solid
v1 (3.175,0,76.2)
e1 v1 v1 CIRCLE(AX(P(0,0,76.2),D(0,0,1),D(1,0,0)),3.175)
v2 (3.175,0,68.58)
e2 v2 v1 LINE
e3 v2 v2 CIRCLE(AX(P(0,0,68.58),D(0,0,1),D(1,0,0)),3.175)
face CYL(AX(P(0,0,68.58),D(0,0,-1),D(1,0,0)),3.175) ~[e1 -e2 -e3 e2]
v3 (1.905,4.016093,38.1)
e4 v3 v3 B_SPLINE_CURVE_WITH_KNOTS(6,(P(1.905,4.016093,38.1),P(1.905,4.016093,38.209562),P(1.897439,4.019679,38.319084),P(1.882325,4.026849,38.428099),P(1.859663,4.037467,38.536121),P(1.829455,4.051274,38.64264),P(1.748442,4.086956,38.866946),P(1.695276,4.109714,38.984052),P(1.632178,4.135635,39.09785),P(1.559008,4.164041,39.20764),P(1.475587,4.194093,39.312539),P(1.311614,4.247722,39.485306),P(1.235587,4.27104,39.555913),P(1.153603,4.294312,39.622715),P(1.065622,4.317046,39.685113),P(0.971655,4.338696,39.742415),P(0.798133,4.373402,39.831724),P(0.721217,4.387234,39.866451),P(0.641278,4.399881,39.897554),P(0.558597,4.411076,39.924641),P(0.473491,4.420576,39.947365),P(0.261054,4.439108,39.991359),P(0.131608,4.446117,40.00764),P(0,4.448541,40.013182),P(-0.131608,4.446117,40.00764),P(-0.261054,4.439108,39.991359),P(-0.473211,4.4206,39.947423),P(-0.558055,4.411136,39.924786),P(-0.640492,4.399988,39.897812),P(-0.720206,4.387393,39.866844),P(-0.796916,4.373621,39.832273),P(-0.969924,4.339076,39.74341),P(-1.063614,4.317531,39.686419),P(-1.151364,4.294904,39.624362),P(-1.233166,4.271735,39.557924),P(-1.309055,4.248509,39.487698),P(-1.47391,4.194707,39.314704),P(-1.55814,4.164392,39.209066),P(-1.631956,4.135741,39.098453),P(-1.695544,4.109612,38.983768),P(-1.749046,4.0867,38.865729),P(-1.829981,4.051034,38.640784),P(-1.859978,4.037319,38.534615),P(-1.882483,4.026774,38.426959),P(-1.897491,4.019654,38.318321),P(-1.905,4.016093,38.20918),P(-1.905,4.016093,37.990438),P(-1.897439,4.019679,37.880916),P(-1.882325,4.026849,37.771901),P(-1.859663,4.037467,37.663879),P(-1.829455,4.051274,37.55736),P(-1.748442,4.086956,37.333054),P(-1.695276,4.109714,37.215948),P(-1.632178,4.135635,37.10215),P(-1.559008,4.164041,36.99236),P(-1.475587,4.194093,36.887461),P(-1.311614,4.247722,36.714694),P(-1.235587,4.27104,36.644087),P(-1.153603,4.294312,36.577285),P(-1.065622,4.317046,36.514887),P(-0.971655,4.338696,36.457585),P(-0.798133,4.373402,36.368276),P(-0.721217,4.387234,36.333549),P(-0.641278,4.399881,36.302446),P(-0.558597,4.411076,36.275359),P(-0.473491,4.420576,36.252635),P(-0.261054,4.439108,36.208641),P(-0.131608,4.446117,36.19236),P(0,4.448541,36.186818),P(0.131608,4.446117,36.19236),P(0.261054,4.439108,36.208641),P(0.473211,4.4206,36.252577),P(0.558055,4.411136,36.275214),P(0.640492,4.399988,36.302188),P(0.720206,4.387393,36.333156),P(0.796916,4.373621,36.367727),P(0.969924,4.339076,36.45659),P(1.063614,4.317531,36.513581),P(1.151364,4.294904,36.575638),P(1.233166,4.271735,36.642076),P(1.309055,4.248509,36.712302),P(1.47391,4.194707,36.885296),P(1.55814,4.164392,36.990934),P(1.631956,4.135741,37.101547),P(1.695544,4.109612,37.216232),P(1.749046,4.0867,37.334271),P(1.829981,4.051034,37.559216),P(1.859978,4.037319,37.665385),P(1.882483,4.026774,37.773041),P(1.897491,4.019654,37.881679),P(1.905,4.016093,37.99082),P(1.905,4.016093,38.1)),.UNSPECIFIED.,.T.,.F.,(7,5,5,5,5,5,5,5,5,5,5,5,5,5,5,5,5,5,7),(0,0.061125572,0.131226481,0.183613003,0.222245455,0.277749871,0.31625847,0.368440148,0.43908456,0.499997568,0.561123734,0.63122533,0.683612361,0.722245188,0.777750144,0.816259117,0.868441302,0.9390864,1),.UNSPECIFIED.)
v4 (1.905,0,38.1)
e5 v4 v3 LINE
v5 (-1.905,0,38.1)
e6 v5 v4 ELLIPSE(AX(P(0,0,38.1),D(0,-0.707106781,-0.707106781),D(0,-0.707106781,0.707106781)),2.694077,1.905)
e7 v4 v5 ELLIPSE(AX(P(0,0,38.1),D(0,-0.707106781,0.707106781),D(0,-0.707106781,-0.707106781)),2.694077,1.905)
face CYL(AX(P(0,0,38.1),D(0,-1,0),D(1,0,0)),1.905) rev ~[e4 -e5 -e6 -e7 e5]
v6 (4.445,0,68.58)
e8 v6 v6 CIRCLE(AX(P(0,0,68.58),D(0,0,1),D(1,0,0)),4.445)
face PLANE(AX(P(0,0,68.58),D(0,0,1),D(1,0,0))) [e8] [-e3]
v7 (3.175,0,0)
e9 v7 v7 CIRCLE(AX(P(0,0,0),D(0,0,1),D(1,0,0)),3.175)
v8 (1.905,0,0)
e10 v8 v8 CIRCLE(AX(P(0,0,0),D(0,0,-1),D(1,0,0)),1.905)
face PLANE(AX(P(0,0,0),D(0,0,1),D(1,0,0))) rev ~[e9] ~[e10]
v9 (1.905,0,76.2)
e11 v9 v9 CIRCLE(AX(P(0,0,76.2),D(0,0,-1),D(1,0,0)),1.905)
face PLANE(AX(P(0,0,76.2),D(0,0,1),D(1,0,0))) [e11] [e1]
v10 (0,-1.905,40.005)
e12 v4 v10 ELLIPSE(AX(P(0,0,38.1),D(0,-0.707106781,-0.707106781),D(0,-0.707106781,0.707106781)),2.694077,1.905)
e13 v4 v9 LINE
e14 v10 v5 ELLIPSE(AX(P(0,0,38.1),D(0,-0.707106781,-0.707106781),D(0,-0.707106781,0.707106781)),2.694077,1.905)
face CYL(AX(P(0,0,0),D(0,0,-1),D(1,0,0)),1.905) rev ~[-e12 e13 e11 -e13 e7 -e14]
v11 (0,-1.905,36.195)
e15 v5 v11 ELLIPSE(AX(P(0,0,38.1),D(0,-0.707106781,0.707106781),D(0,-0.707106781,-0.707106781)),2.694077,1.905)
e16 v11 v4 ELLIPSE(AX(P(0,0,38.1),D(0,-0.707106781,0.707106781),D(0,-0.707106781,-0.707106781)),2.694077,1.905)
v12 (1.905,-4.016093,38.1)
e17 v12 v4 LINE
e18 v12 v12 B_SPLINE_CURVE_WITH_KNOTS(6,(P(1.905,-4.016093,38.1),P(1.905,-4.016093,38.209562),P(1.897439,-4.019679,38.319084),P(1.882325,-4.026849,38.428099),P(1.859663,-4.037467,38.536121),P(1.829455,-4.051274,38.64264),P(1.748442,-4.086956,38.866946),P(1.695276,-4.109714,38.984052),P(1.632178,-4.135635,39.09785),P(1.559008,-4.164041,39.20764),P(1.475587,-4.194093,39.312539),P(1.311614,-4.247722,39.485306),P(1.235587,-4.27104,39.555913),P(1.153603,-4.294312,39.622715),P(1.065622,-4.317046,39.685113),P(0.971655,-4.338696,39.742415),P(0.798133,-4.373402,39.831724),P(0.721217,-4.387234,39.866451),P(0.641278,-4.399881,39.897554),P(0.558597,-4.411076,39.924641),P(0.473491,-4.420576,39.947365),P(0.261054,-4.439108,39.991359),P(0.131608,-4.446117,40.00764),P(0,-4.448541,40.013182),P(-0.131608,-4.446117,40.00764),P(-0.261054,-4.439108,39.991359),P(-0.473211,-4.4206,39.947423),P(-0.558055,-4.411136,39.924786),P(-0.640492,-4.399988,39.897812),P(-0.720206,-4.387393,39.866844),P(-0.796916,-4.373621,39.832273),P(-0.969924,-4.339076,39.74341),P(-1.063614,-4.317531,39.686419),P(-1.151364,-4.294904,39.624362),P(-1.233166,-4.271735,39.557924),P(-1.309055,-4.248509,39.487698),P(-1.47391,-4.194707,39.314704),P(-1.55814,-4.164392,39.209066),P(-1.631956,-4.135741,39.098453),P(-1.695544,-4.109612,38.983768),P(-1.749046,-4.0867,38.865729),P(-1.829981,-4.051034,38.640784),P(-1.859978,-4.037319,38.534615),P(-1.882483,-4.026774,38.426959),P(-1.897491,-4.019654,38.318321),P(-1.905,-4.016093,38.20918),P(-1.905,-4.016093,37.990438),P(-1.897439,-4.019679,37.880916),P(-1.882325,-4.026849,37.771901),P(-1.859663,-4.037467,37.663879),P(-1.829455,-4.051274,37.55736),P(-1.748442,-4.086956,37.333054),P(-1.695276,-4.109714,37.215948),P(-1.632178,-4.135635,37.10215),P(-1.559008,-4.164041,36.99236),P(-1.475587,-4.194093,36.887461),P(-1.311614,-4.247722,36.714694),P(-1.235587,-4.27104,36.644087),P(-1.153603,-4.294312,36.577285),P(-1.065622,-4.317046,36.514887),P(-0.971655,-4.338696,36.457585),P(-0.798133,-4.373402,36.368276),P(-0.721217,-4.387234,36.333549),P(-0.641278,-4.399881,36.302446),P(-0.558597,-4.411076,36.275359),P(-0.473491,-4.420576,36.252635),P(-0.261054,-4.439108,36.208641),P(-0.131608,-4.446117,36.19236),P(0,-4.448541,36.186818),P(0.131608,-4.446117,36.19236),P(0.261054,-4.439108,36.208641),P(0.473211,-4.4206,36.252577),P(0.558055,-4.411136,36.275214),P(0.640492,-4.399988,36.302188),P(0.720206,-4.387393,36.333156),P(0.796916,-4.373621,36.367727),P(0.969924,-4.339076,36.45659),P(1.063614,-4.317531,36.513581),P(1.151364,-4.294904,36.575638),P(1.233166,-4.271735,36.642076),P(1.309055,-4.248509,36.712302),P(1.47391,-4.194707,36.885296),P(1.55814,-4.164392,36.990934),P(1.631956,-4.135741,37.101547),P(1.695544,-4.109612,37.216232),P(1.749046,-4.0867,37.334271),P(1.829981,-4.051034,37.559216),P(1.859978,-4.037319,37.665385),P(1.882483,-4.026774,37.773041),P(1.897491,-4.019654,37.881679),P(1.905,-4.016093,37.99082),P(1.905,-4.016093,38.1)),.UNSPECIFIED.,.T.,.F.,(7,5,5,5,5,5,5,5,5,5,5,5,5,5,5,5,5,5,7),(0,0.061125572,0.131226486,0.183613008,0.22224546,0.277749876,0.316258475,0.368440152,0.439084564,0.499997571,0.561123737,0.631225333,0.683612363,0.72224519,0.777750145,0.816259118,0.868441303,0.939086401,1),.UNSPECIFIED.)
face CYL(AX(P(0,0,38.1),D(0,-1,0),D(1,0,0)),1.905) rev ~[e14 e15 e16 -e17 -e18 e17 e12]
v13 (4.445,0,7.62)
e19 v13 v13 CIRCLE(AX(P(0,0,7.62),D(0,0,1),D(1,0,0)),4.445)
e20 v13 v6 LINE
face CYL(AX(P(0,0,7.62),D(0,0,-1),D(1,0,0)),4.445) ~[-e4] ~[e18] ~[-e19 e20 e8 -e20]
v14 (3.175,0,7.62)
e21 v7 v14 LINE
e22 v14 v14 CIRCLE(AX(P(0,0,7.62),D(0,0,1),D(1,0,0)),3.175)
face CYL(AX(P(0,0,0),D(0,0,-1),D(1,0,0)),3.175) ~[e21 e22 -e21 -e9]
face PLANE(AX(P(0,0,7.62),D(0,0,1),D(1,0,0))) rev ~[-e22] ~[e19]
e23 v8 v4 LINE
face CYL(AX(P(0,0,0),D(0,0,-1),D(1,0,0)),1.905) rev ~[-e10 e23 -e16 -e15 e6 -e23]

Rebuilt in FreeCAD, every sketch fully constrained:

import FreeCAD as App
import Part
import Sketcher

V = App.Vector
Q = App.Units.Quantity

doc = App.newDocument("Part")
body = doc.addObject("PartDesign::Body", "Body")

# Sketch on XY plane
sketch1 = body.newObject("Sketcher::SketchObject", "Sketch")
sketch1.AttachmentSupport = (doc.getObject("XY_Plane"), [""])
sketch1.MapMode = "FlatFace"
sketch1.addGeometry(Part.Circle(V(0, 0, 0), V(0, 0, 1), 3.2), False)
sketch1.addConstraint(Sketcher.Constraint("Coincident", 0, 3, -1, 1))
sketch1.addConstraint(Sketcher.Constraint("Diameter", 0, Q("0.25 in")))
pad1 = body.newObject("PartDesign::Pad", "Pad")
pad1.Profile = sketch1
pad1.Length = Q("0.3 in")

# Sketch on XY plane
sketch2 = body.newObject("Sketcher::SketchObject", "Sketch001")
sketch2.AttachmentSupport = (doc.getObject("XY_Plane"), [""])
sketch2.MapMode = "FlatFace"
sketch2.AttachmentOffset = App.Placement(V(0, 0, 0.3 * 25.4), App.Rotation())
sketch2.addGeometry(Part.Circle(V(0, 0, 0), V(0, 0, 1), 4.4), False)
sketch2.addConstraint(Sketcher.Constraint("Coincident", 0, 3, -1, 1))
sketch2.addConstraint(Sketcher.Constraint("Diameter", 0, Q("0.35 in")))
pad2 = body.newObject("PartDesign::Pad", "Pad001")
pad2.Profile = sketch2
pad2.Length = Q("2.4 in")

# Sketch on XY plane
sketch3 = body.newObject("Sketcher::SketchObject", "Sketch002")
sketch3.AttachmentSupport = (doc.getObject("XY_Plane"), [""])
sketch3.MapMode = "FlatFace"
sketch3.AttachmentOffset = App.Placement(V(0, 0, 2.7 * 25.4), App.Rotation())
sketch3.addGeometry(Part.Circle(V(0, 0, 0), V(0, 0, 1), 3.2), False)
sketch3.addConstraint(Sketcher.Constraint("Coincident", 0, 3, -1, 1))
sketch3.addConstraint(Sketcher.Constraint("Diameter", 0, Q("0.25 in")))
pad3 = body.newObject("PartDesign::Pad", "Pad002")
pad3.Profile = sketch3
pad3.Length = Q("0.3 in")

# Sketch on XZ plane
sketch4 = body.newObject("Sketcher::SketchObject", "Sketch003")
sketch4.AttachmentSupport = (doc.getObject("XZ_Plane"), [""])
sketch4.MapMode = "FlatFace"
sketch4.addGeometry(Part.Circle(V(0, 38.1, 0), V(0, 0, 1), 1.9), False)
sketch4.addConstraint(Sketcher.Constraint("PointOnObject", 0, 3, -2))
sketch4.addConstraint(Sketcher.Constraint("Diameter", 0, Q("0.15 in")))
sketch4.addConstraint(Sketcher.Constraint("DistanceY", -1, 1, 0, 3, Q("1.5 in")))
pocket1 = body.newObject("PartDesign::Pocket", "Pocket")
pocket1.Profile = sketch4
pocket1.Type = "ThroughAll"
pocket1.Midplane = True

# Sketch on XY plane
sketch5 = body.newObject("Sketcher::SketchObject", "Sketch004")
sketch5.AttachmentSupport = (doc.getObject("XY_Plane"), [""])
sketch5.MapMode = "FlatFace"
sketch5.addGeometry(Part.Circle(V(0, 0, 0), V(0, 0, 1), 1.9), False)
sketch5.addConstraint(Sketcher.Constraint("Coincident", 0, 3, -1, 1))
sketch5.addConstraint(Sketcher.Constraint("Diameter", 0, Q("0.15 in")))
pocket2 = body.newObject("PartDesign::Pocket", "Pocket001")
pocket2.Profile = sketch5
pocket2.Type = "ThroughAll"
pocket2.Reversed = True

doc.recompute()
